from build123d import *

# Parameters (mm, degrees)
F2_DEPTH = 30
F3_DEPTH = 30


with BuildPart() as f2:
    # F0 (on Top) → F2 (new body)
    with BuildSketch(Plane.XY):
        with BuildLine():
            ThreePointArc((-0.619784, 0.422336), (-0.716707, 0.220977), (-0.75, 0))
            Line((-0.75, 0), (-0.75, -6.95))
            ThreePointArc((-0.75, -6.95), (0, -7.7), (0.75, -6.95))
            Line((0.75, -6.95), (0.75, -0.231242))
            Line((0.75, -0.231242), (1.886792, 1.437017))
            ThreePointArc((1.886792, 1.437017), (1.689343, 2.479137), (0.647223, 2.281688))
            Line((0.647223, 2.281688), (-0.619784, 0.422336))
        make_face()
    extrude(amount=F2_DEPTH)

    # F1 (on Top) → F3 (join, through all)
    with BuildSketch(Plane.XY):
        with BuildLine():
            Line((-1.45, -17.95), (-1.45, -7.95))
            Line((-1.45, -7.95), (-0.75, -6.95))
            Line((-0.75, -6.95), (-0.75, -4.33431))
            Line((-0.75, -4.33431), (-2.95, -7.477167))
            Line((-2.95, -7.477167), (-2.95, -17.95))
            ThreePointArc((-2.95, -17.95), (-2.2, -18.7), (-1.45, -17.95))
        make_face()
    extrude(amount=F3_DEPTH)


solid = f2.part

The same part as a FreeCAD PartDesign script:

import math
import FreeCAD as App
import Part
import Sketcher

V = App.Vector

doc = App.newDocument("Part")
params = doc.addObject("Spreadsheet::Sheet", "Params")
for row, (alias, value) in enumerate([
    ("sketch1_radius", "0.75 mm"),
    ("sketch1_height", "6.95 mm"),
    ("sketch1_length", "2.249999 mm"),
    ("pad1_length", "30 mm"),
    ("sketch2_height", "10 mm"),
    ("sketch2_radius", "0.75 mm"),
    ("pad2_length", "30 mm"),
], start=1):
    params.set(f"A{row}", alias)
    params.set(f"B{row}", "=" + value)
    params.setAlias(f"B{row}", alias)

body = doc.addObject("PartDesign::Body", "Body")

sketch1 = body.newObject("Sketcher::SketchObject", "Sketch")
sketch1.AttachmentSupport = (doc.getObject("XY_Plane"), [""])
sketch1.MapMode = "FlatFace"
sketch1.addGeometry(Part.ArcOfCircle(Part.Circle(V(0, 0, 0), V(0, 0, 1), 0.75), math.radians(146), math.radians(180)), False)
sketch1.addGeometry(Part.LineSegment(V(-0.75, 0, 0), V(-0.75, -6.95, 0)), False)
sketch1.addGeometry(Part.ArcOfCircle(Part.Circle(V(0, -6.95, 0), V(0, 0, 1), 0.75), math.radians(180), math.radians(360)), False)
sketch1.addGeometry(Part.LineSegment(V(0.75, -6.95, 0), V(0.75, -0.23, 0)), False)
sketch1.addGeometry(Part.LineSegment(V(0.75, -0.23, 0), V(1.89, 1.44, 0)), False)
sketch1.addGeometry(Part.ArcOfCircle(Part.Circle(V(1.27, 1.86, 0), V(0, 0, 1), 0.75), math.radians(-34), math.radians(146)), False)
sketch1.addGeometry(Part.LineSegment(V(0.65, 2.28, 0), V(-0.62, 0.42, 0)), False)
sketch1.addConstraint(Sketcher.Constraint("Tangent", 0, 2, 1, 1))
sketch1.addConstraint(Sketcher.Constraint("Tangent", 1, 2, 2, 1))
sketch1.addConstraint(Sketcher.Constraint("Tangent", 2, 2, 3, 1))
sketch1.addConstraint(Sketcher.Constraint("Coincident", 3, 2, 4, 1))
sketch1.addConstraint(Sketcher.Constraint("Tangent", 4, 2, 5, 1))
sketch1.addConstraint(Sketcher.Constraint("Tangent", 5, 2, 6, 1))
sketch1.addConstraint(Sketcher.Constraint("Tangent", 6, 2, 0, 1))
sketch1.addConstraint(Sketcher.Constraint("Vertical", 1))
sketch1.addConstraint(Sketcher.Constraint("Vertical", 3))
sketch1.addConstraint(Sketcher.Constraint("Coincident", 0, 3, -1, 1))
sketch1.addConstraint(Sketcher.Constraint("Equal", 2, 5))
sketch1.addConstraint(Sketcher.Constraint("PointOnObject", 2, 3, -2))
sketch1.addConstraint(Sketcher.Constraint("Parallel", 4, 6))
sketch1.addConstraint(Sketcher.Constraint("Radius", 2, 0.75))
sketch1.addConstraint(Sketcher.Constraint("DistanceY", 1, 2, 1, 1, 6.95))
sketch1.addConstraint(Sketcher.Constraint("Distance", 6, 2.249999))
sketch1.addConstraint(Sketcher.Constraint("DistanceY", 3, 1, 3, 2, 6.718758))
sketch1.setExpression("Constraints[13]", "Params.sketch1_radius")
sketch1.setExpression("Constraints[14]", "Params.sketch1_height")
sketch1.setExpression("Constraints[15]", "Params.sketch1_length")
pad1 = body.newObject("PartDesign::Pad", "Pad")
pad1.Profile = sketch1
pad1.setExpression("Length", "Params.pad1_length")

sketch2 = body.newObject("Sketcher::SketchObject", "Sketch001")
sketch2.AttachmentSupport = (doc.getObject("XY_Plane"), [""])
sketch2.MapMode = "FlatFace"
sketch2.addGeometry(Part.LineSegment(V(-1.4, -17.9, 0), V(-1.4, -8, 0)), False)
sketch2.addGeometry(Part.LineSegment(V(-1.4, -8, 0), V(-0.8, -7, 0)), False)
sketch2.addGeometry(Part.LineSegment(V(-0.8, -7, 0), V(-0.8, -4.3, 0)), False)
sketch2.addGeometry(Part.LineSegment(V(-0.8, -4.3, 0), V(-3, -7.5, 0)), False)
sketch2.addGeometry(Part.LineSegment(V(-3, -7.5, 0), V(-3, -17.9, 0)), False)
sketch2.addGeometry(Part.ArcOfCircle(Part.Circle(V(-2.2, -17.9, 0), V(0, 0, 1), 0.8), math.radians(180), math.radians(360)), False)
sketch2.addConstraint(Sketcher.Constraint("Coincident", 0, 2, 1, 1))
sketch2.addConstraint(Sketcher.Constraint("Coincident", 1, 2, 2, 1))
sketch2.addConstraint(Sketcher.Constraint("Coincident", 2, 2, 3, 1))
sketch2.addConstraint(Sketcher.Constraint("Coincident", 3, 2, 4, 1))
sketch2.addConstraint(Sketcher.Constraint("Tangent", 4, 2, 5, 1))
sketch2.addConstraint(Sketcher.Constraint("Tangent", 5, 2, 0, 1))
sketch2.addConstraint(Sketcher.Constraint("Vertical", 0))
sketch2.addConstraint(Sketcher.Constraint("Vertical", 2))
sketch2.addConstraint(Sketcher.Constraint("Vertical", 4))
sketch2.addConstraint(Sketcher.Constraint("Parallel", 1, 3))
sketch2.addConstraint(Sketcher.Constraint("DistanceY", 0, 1, 0, 2, 10.0))
sketch2.addConstraint(Sketcher.Constraint("Radius", 5, 0.75))
sketch2.addConstraint(Sketcher.Constraint("DistanceY", 0, 2, 1, 2, 1.0))
sketch2.addConstraint(Sketcher.Constraint("DistanceX", 5, 3, -1, 1, 2.2))
sketch2.addConstraint(Sketcher.Constraint("DistanceX", 0, 2, 1, 2, 0.7))
sketch2.addConstraint(Sketcher.Constraint("DistanceY", 5, 3, -1, 1, 17.95))
sketch2.addConstraint(Sketcher.Constraint("DistanceY", 2, 1, 2, 2, 2.61569))
sketch2.setExpression("Constraints[10]", "Params.sketch2_height")
sketch2.setExpression("Constraints[11]", "Params.sketch2_radius")
pad2 = body.newObject("PartDesign::Pad", "Pad001")
pad2.Profile = sketch2
pad2.setExpression("Length", "Params.pad2_length")

doc.recompute()
